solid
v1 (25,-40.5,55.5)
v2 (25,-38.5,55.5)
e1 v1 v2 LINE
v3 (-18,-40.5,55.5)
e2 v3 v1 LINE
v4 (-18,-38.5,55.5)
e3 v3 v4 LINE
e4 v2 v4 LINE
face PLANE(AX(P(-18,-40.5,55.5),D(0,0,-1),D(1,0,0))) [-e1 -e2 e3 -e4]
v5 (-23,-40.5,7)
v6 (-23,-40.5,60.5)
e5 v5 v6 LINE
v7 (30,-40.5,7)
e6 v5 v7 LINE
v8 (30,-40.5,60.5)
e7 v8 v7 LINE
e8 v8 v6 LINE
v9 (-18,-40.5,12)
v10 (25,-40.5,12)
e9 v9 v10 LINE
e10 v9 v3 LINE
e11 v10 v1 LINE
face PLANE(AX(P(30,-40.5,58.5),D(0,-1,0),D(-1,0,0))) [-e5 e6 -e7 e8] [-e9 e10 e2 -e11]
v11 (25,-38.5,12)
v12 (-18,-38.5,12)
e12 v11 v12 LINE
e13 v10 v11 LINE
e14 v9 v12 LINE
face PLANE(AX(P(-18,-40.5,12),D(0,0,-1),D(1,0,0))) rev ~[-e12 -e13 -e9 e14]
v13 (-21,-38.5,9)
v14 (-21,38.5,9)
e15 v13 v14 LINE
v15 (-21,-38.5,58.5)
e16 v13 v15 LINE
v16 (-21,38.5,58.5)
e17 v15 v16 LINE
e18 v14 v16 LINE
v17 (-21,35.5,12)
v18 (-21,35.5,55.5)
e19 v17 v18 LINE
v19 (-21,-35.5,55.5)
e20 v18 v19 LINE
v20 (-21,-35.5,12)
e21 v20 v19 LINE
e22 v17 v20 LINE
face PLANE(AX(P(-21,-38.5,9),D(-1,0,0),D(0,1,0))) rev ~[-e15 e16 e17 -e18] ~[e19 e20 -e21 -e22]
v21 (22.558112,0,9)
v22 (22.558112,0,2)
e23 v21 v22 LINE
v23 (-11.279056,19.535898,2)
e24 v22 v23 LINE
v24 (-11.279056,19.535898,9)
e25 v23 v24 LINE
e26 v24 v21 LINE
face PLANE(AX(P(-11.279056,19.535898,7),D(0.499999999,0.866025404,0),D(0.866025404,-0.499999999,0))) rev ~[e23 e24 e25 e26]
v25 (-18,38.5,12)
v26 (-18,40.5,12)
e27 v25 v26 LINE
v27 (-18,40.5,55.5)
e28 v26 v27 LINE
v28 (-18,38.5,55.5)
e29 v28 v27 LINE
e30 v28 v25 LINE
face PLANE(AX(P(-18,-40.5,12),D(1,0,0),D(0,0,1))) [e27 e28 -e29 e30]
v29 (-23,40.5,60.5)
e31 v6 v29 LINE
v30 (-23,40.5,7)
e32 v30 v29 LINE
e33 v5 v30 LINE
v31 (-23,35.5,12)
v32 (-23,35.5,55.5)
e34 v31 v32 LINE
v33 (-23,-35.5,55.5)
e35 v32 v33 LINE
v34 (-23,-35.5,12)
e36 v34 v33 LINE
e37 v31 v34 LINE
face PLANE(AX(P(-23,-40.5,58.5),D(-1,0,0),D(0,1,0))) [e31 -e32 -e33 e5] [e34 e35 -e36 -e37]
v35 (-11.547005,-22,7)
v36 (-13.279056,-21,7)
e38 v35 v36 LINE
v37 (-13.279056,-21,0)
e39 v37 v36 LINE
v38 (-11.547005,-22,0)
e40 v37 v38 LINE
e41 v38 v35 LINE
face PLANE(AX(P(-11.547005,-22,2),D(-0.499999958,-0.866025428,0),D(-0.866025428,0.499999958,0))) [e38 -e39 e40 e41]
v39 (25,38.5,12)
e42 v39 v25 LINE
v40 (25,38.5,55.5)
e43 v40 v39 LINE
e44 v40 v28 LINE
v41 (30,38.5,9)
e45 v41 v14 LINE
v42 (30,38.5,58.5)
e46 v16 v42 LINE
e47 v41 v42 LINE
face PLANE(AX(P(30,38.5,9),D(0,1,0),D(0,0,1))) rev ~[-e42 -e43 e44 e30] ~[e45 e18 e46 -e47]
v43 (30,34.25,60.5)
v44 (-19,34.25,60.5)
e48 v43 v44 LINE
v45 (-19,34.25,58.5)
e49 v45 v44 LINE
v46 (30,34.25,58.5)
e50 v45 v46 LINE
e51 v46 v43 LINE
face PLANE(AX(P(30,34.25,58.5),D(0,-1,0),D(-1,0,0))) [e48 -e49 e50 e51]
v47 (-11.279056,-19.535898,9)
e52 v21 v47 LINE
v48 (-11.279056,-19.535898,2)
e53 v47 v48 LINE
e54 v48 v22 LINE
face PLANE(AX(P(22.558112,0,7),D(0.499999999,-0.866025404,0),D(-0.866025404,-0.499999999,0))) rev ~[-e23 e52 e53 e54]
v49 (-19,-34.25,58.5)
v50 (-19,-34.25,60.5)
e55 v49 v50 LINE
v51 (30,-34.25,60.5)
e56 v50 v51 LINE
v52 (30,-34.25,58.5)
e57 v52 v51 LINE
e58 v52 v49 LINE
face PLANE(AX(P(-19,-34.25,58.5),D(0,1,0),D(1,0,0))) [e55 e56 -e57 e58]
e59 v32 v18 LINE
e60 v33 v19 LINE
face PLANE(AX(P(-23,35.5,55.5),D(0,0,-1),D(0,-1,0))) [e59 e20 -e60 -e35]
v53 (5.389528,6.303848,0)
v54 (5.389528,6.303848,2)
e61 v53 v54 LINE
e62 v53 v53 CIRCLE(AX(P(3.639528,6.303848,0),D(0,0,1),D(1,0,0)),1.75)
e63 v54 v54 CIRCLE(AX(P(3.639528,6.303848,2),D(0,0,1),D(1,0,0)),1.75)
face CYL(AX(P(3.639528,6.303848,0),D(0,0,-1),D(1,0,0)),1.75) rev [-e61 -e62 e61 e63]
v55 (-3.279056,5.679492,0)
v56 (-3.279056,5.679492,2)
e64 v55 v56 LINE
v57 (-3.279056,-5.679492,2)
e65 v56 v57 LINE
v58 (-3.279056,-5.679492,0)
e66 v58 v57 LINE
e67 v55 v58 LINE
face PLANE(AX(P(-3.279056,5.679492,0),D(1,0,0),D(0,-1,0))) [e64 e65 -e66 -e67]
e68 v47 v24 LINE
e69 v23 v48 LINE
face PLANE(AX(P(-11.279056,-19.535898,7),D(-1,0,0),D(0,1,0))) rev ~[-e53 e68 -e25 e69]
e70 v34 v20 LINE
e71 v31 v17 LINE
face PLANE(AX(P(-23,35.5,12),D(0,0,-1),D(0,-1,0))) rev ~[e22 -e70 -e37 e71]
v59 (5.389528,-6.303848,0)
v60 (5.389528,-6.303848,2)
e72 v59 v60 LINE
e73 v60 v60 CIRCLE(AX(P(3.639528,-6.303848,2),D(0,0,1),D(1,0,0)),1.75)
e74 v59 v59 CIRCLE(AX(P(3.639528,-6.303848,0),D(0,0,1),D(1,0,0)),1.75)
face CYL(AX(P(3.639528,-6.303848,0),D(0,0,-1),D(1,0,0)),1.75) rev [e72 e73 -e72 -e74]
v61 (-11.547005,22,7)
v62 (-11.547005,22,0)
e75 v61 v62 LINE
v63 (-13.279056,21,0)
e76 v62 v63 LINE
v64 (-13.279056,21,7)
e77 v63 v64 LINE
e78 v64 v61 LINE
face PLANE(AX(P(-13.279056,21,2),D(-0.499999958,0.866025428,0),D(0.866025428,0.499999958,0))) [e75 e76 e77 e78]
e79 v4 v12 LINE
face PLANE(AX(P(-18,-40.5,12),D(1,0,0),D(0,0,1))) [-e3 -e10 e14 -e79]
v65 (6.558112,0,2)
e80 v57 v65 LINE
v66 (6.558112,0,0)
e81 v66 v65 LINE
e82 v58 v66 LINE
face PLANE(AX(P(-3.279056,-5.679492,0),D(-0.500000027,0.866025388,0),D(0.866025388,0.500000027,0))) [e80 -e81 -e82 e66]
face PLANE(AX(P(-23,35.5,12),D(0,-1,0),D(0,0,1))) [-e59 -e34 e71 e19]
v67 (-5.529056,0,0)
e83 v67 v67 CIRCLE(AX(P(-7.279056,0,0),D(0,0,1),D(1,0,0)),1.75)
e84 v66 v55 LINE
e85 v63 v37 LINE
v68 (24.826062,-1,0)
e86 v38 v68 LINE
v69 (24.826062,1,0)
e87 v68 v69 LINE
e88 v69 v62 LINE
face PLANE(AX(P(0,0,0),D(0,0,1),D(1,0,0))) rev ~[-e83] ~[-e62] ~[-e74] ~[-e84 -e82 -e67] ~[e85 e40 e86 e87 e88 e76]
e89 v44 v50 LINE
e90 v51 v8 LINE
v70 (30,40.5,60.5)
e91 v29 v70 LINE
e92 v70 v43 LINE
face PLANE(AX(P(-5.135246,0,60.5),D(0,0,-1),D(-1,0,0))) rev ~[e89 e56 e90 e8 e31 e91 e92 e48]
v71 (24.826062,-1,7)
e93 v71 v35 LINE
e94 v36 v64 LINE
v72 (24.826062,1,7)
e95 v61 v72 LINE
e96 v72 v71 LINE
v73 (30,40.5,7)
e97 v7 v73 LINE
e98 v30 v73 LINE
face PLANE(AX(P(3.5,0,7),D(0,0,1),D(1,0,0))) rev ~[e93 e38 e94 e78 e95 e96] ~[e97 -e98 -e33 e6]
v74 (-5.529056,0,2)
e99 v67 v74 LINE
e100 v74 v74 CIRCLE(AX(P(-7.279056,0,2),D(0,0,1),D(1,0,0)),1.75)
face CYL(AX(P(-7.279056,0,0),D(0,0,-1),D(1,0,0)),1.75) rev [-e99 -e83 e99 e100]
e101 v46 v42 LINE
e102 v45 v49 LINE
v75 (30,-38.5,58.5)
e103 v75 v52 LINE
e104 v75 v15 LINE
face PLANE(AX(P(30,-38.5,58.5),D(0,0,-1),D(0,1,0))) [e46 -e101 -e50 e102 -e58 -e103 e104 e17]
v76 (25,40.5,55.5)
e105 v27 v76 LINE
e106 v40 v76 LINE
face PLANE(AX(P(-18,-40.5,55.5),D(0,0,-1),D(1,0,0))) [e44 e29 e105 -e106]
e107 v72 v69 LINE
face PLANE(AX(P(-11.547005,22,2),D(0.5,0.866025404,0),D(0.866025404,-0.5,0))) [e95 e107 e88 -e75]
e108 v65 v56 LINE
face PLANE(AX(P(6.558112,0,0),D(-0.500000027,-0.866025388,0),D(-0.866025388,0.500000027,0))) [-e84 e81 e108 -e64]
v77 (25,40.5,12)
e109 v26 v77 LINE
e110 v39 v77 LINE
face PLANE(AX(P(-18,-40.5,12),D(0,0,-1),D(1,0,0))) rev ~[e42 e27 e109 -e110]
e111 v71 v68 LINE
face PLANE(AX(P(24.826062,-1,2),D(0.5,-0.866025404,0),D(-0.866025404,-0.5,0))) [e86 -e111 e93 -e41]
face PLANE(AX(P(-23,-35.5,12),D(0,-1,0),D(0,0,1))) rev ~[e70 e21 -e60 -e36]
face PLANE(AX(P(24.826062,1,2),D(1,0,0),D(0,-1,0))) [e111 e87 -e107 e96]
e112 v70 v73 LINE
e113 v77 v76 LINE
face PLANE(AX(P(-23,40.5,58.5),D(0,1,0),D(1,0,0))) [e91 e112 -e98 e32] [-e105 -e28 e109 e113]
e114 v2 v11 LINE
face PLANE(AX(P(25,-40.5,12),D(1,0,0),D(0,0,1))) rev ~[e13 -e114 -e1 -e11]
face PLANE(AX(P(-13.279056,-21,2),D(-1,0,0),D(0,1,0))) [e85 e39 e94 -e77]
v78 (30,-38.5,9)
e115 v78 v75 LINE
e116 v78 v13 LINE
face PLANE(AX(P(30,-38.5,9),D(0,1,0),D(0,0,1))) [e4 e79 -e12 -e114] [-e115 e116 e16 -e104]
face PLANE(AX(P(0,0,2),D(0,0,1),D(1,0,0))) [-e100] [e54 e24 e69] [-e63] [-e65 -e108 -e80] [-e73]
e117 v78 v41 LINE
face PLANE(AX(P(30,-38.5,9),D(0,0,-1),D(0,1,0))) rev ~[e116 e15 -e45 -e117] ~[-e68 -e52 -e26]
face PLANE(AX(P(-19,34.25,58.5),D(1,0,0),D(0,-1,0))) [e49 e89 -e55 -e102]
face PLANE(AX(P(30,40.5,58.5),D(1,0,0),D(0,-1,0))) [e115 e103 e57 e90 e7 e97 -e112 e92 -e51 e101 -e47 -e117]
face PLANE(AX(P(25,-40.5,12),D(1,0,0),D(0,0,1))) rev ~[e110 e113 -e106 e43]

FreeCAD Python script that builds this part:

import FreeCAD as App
import Part
import Sketcher
Q = App.Units.Quantity


def add_polygon(sketch, points):
    """Adds a closed chain of lines whose ends are joined by coincident constraints."""
    first, n = sketch.GeometryCount, len(points)
    for a, b in zip(points, points[1:] + points[:1]):
        sketch.addGeometry(Part.LineSegment(App.Vector(*a, 0), App.Vector(*b, 0)), False)
    for i in range(n):
        sketch.addConstraint(Sketcher.Constraint("Coincident", first + i, 2, first + (i + 1) % n, 1))

doc = App.newDocument("Part")
params = doc.addObject("Spreadsheet::Sheet", "Params")
for row, (alias, value) in enumerate([
    ("sketch1_diameter", "3.5 mm"),
    ("sketch1_height", "42 mm"),
    ("sketch1_height2", "2 mm"),
    ("sketch1_length", "2 mm"),
    ("pad1_length", "2 mm"),
    ("sketch2_height", "42 mm"),
    ("sketch2_height2", "2 mm"),
    ("sketch2_length", "2 mm"),
    ("pad2_length", "5 mm"),
    ("sketch3_width", "53 mm"),
    ("sketch3_height", "81 mm"),
    ("pad3_length", "2 mm"),
    ("sketch4_width", "53 mm"),
    ("sketch4_width2", "49 mm"),
    ("sketch4_height", "81 mm"),
    ("sketch4_height2", "77 mm"),
    ("pad4_length", "49.5 mm"),
    ("sketch5_width", "53 mm"),
    ("sketch5_width2", "49 mm"),
    ("sketch5_height", "81 mm"),
    ("sketch5_height2", "68.5 mm"),
    ("pad5_length", "2 mm"),
    ("sketch6_width", "43 mm"),
    ("sketch6_height", "43.5 mm"),
    ("pocket1_length", "81 mm"),
    ("sketch7_width", "71 mm"),
    ("sketch7_height", "43.5 mm"),
    ("pocket2_length", "2 mm"),
    ("sketch8_width", "77 mm"),
    ("sketch8_height", "49.5 mm"),
    ("pocket3_length", "5 mm"),
], start=1):
    params.set(f"A{row}", alias)
    params.set(f"B{row}", "=" + value)
    params.setAlias(f"B{row}", alias)

body = doc.addObject("PartDesign::Body", "Body")

sketch1 = body.newObject("Sketcher::SketchObject", "Sketch")
sketch1.AttachmentSupport = (doc.getObject("XY_Plane"), [""])
sketch1.MapMode = "FlatFace"
add_polygon(sketch1, [(-13.3, 21), (-13.3, -21), (-11.5, -22), (24.8, -1), (24.8, 1), (-11.5, 22)])
sketch1.addGeometry(Part.Circle(App.Vector(3.6, -6.3, 0), App.Vector(0, 0, 1), 1.8), False)
sketch1.addGeometry(Part.Circle(App.Vector(-7.3, 0, 0), App.Vector(0, 0, 1), 1.8), False)
add_polygon(sketch1, [(-3.3, 5.7), (6.6, 0), (-3.3, -5.7)])
sketch1.addGeometry(Part.Circle(App.Vector(3.6, 6.3, 0), App.Vector(0, 0, 1), 1.8), False)
sketch1.addConstraint(Sketcher.Constraint("Vertical", 0))
sketch1.addConstraint(Sketcher.Constraint("Vertical", 3))
sketch1.addConstraint(Sketcher.Constraint("Vertical", 10))
sketch1.addConstraint(Sketcher.Constraint("Equal", 6, 7))
sketch1.addConstraint(Sketcher.Constraint("Equal", 7, 11))
sketch1.addConstraint(Sketcher.Constraint("Symmetric", 6, 3, 11, 3, -1))
sketch1.addConstraint(Sketcher.Constraint("Symmetric", 1, 2, 4, 2, -1))
sketch1.addConstraint(Sketcher.Constraint("PointOnObject", 7, 3, -1))
sketch1.addConstraint(Sketcher.Constraint("PointOnObject", 8, 2, -1))
sketch1.addConstraint(Sketcher.Constraint("Parallel", 1, 4))
sketch1.addConstraint(Sketcher.Constraint("Parallel", 2, 5))
sketch1.addConstraint(Sketcher.Constraint("Parallel", 4, 8))
sketch1.addConstraint(Sketcher.Constraint("Parallel", 5, 9))
sketch1.addConstraint(Sketcher.Constraint("Equal", 2, 4))
sketch1.addConstraint(Sketcher.Constraint("Diameter", 6, Q("3.5 mm")))
sketch1.addConstraint(Sketcher.Constraint("DistanceY", 0, 2, 0, 1, Q("42 mm")))
sketch1.addConstraint(Sketcher.Constraint("DistanceY", 3, 1, 3, 2, Q("2 mm")))
sketch1.addConstraint(Sketcher.Constraint("Angle", 1, Q("-29.999997 deg")))
sketch1.addConstraint(Sketcher.Constraint("Distance", 1, Q("2 mm")))
sketch1.addConstraint(Sketcher.Constraint("DistanceX", 0, 2, 7, 3, Q("6 mm")))
sketch1.addConstraint(Sketcher.Constraint("DistanceX", 7, 3, 9, 2, Q("4 mm")))
sketch1.addConstraint(Sketcher.Constraint("DistanceY", 10, 1, 10, 2, Q("11.358984 mm")))
sketch1.addConstraint(Sketcher.Constraint("DistanceY", 6, 3, -1, 1, Q("6.303848 mm")))
sketch1.addConstraint(Sketcher.Constraint("DistanceX", -1, 1, 6, 3, Q("3.639528 mm")))
sketch1.addConstraint(Sketcher.Constraint("DistanceX", 7, 3, -1, 1, Q("7.279056 mm")))
sketch1.setExpression("Constraints[23]", "Params.sketch1_diameter")
sketch1.setExpression("Constraints[24]", "Params.sketch1_height")
sketch1.setExpression("Constraints[25]", "Params.sketch1_height2")
sketch1.setExpression("Constraints[27]", "Params.sketch1_length")
pad1 = body.newObject("PartDesign::Pad", "Pad")
pad1.Profile = sketch1
pad1.setExpression("Length", "Params.pad1_length")

sketch2 = body.newObject("Sketcher::SketchObject", "Sketch001")
sketch2.AttachmentSupport = (doc.getObject("XY_Plane"), [""])
sketch2.MapMode = "FlatFace"
sketch2.AttachmentOffset = App.Placement(App.Vector(0, 0, 2), App.Rotation())
add_polygon(sketch2, [(-11.5, 22), (-13.3, 21), (-13.3, -21), (-11.5, -22), (24.8, -1), (24.8, 1)])
add_polygon(sketch2, [(22.6, 0), (-11.3, -19.5), (-11.3, 19.5)])
sketch2.addConstraint(Sketcher.Constraint("Vertical", 1))
sketch2.addConstraint(Sketcher.Constraint("Vertical", 4))
sketch2.addConstraint(Sketcher.Constraint("Vertical", 7))
sketch2.addConstraint(Sketcher.Constraint("Symmetric", 2, 2, 5, 2, -1))
sketch2.addConstraint(Sketcher.Constraint("PointOnObject", 8, 2, -1))
sketch2.addConstraint(Sketcher.Constraint("Parallel", 0, 3))
sketch2.addConstraint(Sketcher.Constraint("Parallel", 2, 5))
sketch2.addConstraint(Sketcher.Constraint("Parallel", 3, 6))
sketch2.addConstraint(Sketcher.Constraint("Parallel", 5, 8))
sketch2.addConstraint(Sketcher.Constraint("Equal", 0, 2))
sketch2.addConstraint(Sketcher.Constraint("DistanceY", 1, 2, 1, 1, Q("42 mm")))
sketch2.addConstraint(Sketcher.Constraint("DistanceY", 4, 1, 4, 2, Q("2 mm")))
sketch2.addConstraint(Sketcher.Constraint("Angle", 0, Q("-150.000003 deg")))
sketch2.addConstraint(Sketcher.Constraint("Distance", 0, Q("2 mm")))
sketch2.addConstraint(Sketcher.Constraint("DistanceX", 1, 2, 6, 2, Q("2 mm")))
sketch2.addConstraint(Sketcher.Constraint("DistanceY", 6, 2, 0, 2, Q("40.535898 mm")))
sketch2.addConstraint(Sketcher.Constraint("DistanceX", 0, 2, -1, 1, Q("13.279056 mm")))
sketch2.setExpression("Constraints[19]", "Params.sketch2_height")
sketch2.setExpression("Constraints[20]", "Params.sketch2_height2")
sketch2.setExpression("Constraints[22]", "Params.sketch2_length")
pad2 = body.newObject("PartDesign::Pad", "Pad001")
pad2.Profile = sketch2
pad2.setExpression("Length", "Params.pad2_length")

sketch3 = body.newObject("Sketcher::SketchObject", "Sketch002")
sketch3.AttachmentSupport = (doc.getObject("XY_Plane"), [""])
sketch3.MapMode = "FlatFace"
sketch3.AttachmentOffset = App.Placement(App.Vector(0, 0, 7), App.Rotation())
add_polygon(sketch3, [(-23, 40), (-23, -40), (30, -40), (30, 40)])
add_polygon(sketch3, [(-11, -20), (-11, 20), (23, 0)])
sketch3.addConstraint(Sketcher.Constraint("Vertical", 0))
sketch3.addConstraint(Sketcher.Constraint("Horizontal", 1))
sketch3.addConstraint(Sketcher.Constraint("Vertical", 2))
sketch3.addConstraint(Sketcher.Constraint("Horizontal", 3))
sketch3.addConstraint(Sketcher.Constraint("Vertical", 4))
sketch3.addConstraint(Sketcher.Constraint("PointOnObject", 5, 2, -1))
sketch3.addConstraint(Sketcher.Constraint("Equal", 5, 6))
sketch3.addConstraint(Sketcher.Constraint("DistanceX", 1, 1, 1, 2, Q("53 mm")))
sketch3.addConstraint(Sketcher.Constraint("DistanceY", 0, 2, 0, 1, Q("81 mm")))
sketch3.addConstraint(Sketcher.Constraint("Angle", 5, Q("-30 deg")))
sketch3.addConstraint(Sketcher.Constraint("DistanceX", 0, 2, -1, 1, Q("23 mm")))
sketch3.addConstraint(Sketcher.Constraint("DistanceY", 0, 2, -1, 1, Q("40.5 mm")))
sketch3.addConstraint(Sketcher.Constraint("DistanceY", 0, 2, 4, 2, Q("60.035898 mm")))
sketch3.addConstraint(Sketcher.Constraint("DistanceX", 4, 2, -1, 1, Q("11.279056 mm")))
sketch3.setExpression("Constraints[14]", "Params.sketch3_width")
sketch3.setExpression("Constraints[15]", "Params.sketch3_height")
pad3 = body.newObject("PartDesign::Pad", "Pad002")
pad3.Profile = sketch3
pad3.setExpression("Length", "Params.pad3_length")

sketch4 = body.newObject("Sketcher::SketchObject", "Sketch003")
sketch4.AttachmentSupport = (doc.getObject("XY_Plane"), [""])
sketch4.MapMode = "FlatFace"
sketch4.AttachmentOffset = App.Placement(App.Vector(0, 0, 9), App.Rotation())
add_polygon(sketch4, [(-23, 40), (-23, -40), (30, -40), (30, 40)])
add_polygon(sketch4, [(28, -38), (-21, -38), (-21, 38), (28, 38)])
sketch4.addConstraint(Sketcher.Constraint("Vertical", 0))
sketch4.addConstraint(Sketcher.Constraint("Horizontal", 1))
sketch4.addConstraint(Sketcher.Constraint("Vertical", 2))
sketch4.addConstraint(Sketcher.Constraint("Horizontal", 3))
sketch4.addConstraint(Sketcher.Constraint("Horizontal", 4))
sketch4.addConstraint(Sketcher.Constraint("Vertical", 5))
sketch4.addConstraint(Sketcher.Constraint("Horizontal", 6))
sketch4.addConstraint(Sketcher.Constraint("Vertical", 7))
sketch4.addConstraint(Sketcher.Constraint("DistanceX", 1, 1, 1, 2, Q("53 mm")))
sketch4.addConstraint(Sketcher.Constraint("DistanceX", 4, 2, 4, 1, Q("49 mm")))
sketch4.addConstraint(Sketcher.Constraint("DistanceY", 0, 2, 0, 1, Q("81 mm")))
sketch4.addConstraint(Sketcher.Constraint("DistanceY", 5, 1, 5, 2, Q("77 mm")))
sketch4.addConstraint(Sketcher.Constraint("DistanceX", 0, 2, -1, 1, Q("23 mm")))
sketch4.addConstraint(Sketcher.Constraint("DistanceX", 4, 2, -1, 1, Q("21 mm")))
sketch4.addConstraint(Sketcher.Constraint("DistanceY", 0, 2, 4, 2, Q("2 mm")))
sketch4.addConstraint(Sketcher.Constraint("DistanceY", 0, 2, -1, 1, Q("40.5 mm")))
sketch4.setExpression("Constraints[16]", "Params.sketch4_width")
sketch4.setExpression("Constraints[17]", "Params.sketch4_width2")
sketch4.setExpression("Constraints[18]", "Params.sketch4_height")
sketch4.setExpression("Constraints[19]", "Params.sketch4_height2")
pad4 = body.newObject("PartDesign::Pad", "Pad003")
pad4.Profile = sketch4
pad4.setExpression("Length", "Params.pad4_length")

sketch5 = body.newObject("Sketcher::SketchObject", "Sketch004")
sketch5.AttachmentSupport = (doc.getObject("XY_Plane"), [""])
sketch5.MapMode = "FlatFace"
sketch5.AttachmentOffset = App.Placement(App.Vector(0, 0, 58.5), App.Rotation())
add_polygon(sketch5, [(30, 40), (-23, 40), (-23, -40), (30, -40), (30, -34), (-19, -34), (-19, 34), (30, 34)])
sketch5.addConstraint(Sketcher.Constraint("Horizontal", 0))
sketch5.addConstraint(Sketcher.Constraint("Vertical", 1))
sketch5.addConstraint(Sketcher.Constraint("Horizontal", 2))
sketch5.addConstraint(Sketcher.Constraint("Vertical", 3))
sketch5.addConstraint(Sketcher.Constraint("Horizontal", 4))
sketch5.addConstraint(Sketcher.Constraint("Vertical", 5))
sketch5.addConstraint(Sketcher.Constraint("Horizontal", 6))
sketch5.addConstraint(Sketcher.Constraint("Vertical", 7))
sketch5.addConstraint(Sketcher.Constraint("Symmetric", 3, 2, 6, 2, -1))
sketch5.addConstraint(Sketcher.Constraint("Equal", 3, 7))
sketch5.addConstraint(Sketcher.Constraint("DistanceX", 0, 2, 0, 1, Q("53 mm")))
sketch5.addConstraint(Sketcher.Constraint("DistanceX", 4, 2, 4, 1, Q("49 mm")))
sketch5.addConstraint(Sketcher.Constraint("DistanceY", 1, 2, 1, 1, Q("81 mm")))
sketch5.addConstraint(Sketcher.Constraint("DistanceY", 5, 1, 5, 2, Q("68.5 mm")))
sketch5.addConstraint(Sketcher.Constraint("DistanceX", 0, 2, -1, 1, Q("23 mm")))
sketch5.setExpression("Constraints[18]", "Params.sketch5_width")
sketch5.setExpression("Constraints[19]", "Params.sketch5_width2")
sketch5.setExpression("Constraints[20]", "Params.sketch5_height")
sketch5.setExpression("Constraints[21]", "Params.sketch5_height2")
pad5 = body.newObject("PartDesign::Pad", "Pad004")
pad5.Profile = sketch5
pad5.setExpression("Length", "Params.pad5_length")

sketch6 = body.newObject("Sketcher::SketchObject", "Sketch005")
sketch6.AttachmentSupport = (doc.getObject("XZ_Plane"), [""])
sketch6.MapMode = "FlatFace"
sketch6.AttachmentOffset = App.Placement(App.Vector(0, 0, 40.5), App.Rotation())
add_polygon(sketch6, [(-18, 56), (-18, 12), (25, 12), (25, 56)])
sketch6.addConstraint(Sketcher.Constraint("Vertical", 0))
sketch6.addConstraint(Sketcher.Constraint("Horizontal", 1))
sketch6.addConstraint(Sketcher.Constraint("Vertical", 2))
sketch6.addConstraint(Sketcher.Constraint("Horizontal", 3))
sketch6.addConstraint(Sketcher.Constraint("DistanceX", 1, 1, 1, 2, Q("43 mm")))
sketch6.addConstraint(Sketcher.Constraint("DistanceY", 0, 2, 0, 1, Q("43.5 mm")))
sketch6.addConstraint(Sketcher.Constraint("DistanceX", 0, 2, -1, 1, Q("18 mm")))
sketch6.addConstraint(Sketcher.Constraint("DistanceY", -1, 1, 0, 2, Q("12 mm")))
sketch6.setExpression("Constraints[8]", "Params.sketch6_width")
sketch6.setExpression("Constraints[9]", "Params.sketch6_height")
pocket1 = body.newObject("PartDesign::Pocket", "Pocket")
pocket1.Profile = sketch6
pocket1.setExpression("Length", "Params.pocket1_length")

sketch7 = body.newObject("Sketcher::SketchObject", "Sketch006")
sketch7.AttachmentSupport = (doc.getObject("YZ_Plane"), [""])
sketch7.MapMode = "FlatFace"
sketch7.AttachmentOffset = App.Placement(App.Vector(0, 0, -23), App.Rotation())
add_polygon(sketch7, [(36, 56), (36, 12), (-36, 12), (-36, 56)])
sketch7.addConstraint(Sketcher.Constraint("Vertical", 0))
sketch7.addConstraint(Sketcher.Constraint("Horizontal", 1))
sketch7.addConstraint(Sketcher.Constraint("Vertical", 2))
sketch7.addConstraint(Sketcher.Constraint("Horizontal", 3))
sketch7.addConstraint(Sketcher.Constraint("DistanceX", 1, 2, 1, 1, Q("71 mm")))
sketch7.addConstraint(Sketcher.Constraint("DistanceY", 0, 2, 0, 1, Q("43.5 mm")))
sketch7.addConstraint(Sketcher.Constraint("DistanceY", -1, 1, 0, 2, Q("12 mm")))
sketch7.addConstraint(Sketcher.Constraint("DistanceX", -1, 1, 0, 2, Q("35.5 mm")))
sketch7.setExpression("Constraints[8]", "Params.sketch7_width")
sketch7.setExpression("Constraints[9]", "Params.sketch7_height")
pocket2 = body.newObject("PartDesign::Pocket", "Pocket001")
pocket2.Profile = sketch7
pocket2.setExpression("Length", "Params.pocket2_length")
pocket2.Reversed = True

sketch8 = body.newObject("Sketcher::SketchObject", "Sketch007")
sketch8.AttachmentSupport = (doc.getObject("YZ_Plane"), [""])
sketch8.MapMode = "FlatFace"
sketch8.AttachmentOffset = App.Placement(App.Vector(0, 0, 30), App.Rotation())
add_polygon(sketch8, [(-38, 58), (-38, 9), (38, 9), (38, 58)])
sketch8.addConstraint(Sketcher.Constraint("Vertical", 0))
sketch8.addConstraint(Sketcher.Constraint("Horizontal", 1))
sketch8.addConstraint(Sketcher.Constraint("Vertical", 2))
sketch8.addConstraint(Sketcher.Constraint("Horizontal", 3))
sketch8.addConstraint(Sketcher.Constraint("DistanceX", 1, 1, 1, 2, Q("77 mm")))
sketch8.addConstraint(Sketcher.Constraint("DistanceY", 0, 2, 0, 1, Q("49.5 mm")))
sketch8.addConstraint(Sketcher.Constraint("DistanceY", -1, 1, 0, 2, Q("9 mm")))
sketch8.addConstraint(Sketcher.Constraint("DistanceX", 0, 2, -1, 1, Q("38.5 mm")))
sketch8.setExpression("Constraints[8]", "Params.sketch8_width")
sketch8.setExpression("Constraints[9]", "Params.sketch8_height")
pocket3 = body.newObject("PartDesign::Pocket", "Pocket002")
pocket3.Profile = sketch8
pocket3.setExpression("Length", "Params.pocket3_length")

doc.recompute()
